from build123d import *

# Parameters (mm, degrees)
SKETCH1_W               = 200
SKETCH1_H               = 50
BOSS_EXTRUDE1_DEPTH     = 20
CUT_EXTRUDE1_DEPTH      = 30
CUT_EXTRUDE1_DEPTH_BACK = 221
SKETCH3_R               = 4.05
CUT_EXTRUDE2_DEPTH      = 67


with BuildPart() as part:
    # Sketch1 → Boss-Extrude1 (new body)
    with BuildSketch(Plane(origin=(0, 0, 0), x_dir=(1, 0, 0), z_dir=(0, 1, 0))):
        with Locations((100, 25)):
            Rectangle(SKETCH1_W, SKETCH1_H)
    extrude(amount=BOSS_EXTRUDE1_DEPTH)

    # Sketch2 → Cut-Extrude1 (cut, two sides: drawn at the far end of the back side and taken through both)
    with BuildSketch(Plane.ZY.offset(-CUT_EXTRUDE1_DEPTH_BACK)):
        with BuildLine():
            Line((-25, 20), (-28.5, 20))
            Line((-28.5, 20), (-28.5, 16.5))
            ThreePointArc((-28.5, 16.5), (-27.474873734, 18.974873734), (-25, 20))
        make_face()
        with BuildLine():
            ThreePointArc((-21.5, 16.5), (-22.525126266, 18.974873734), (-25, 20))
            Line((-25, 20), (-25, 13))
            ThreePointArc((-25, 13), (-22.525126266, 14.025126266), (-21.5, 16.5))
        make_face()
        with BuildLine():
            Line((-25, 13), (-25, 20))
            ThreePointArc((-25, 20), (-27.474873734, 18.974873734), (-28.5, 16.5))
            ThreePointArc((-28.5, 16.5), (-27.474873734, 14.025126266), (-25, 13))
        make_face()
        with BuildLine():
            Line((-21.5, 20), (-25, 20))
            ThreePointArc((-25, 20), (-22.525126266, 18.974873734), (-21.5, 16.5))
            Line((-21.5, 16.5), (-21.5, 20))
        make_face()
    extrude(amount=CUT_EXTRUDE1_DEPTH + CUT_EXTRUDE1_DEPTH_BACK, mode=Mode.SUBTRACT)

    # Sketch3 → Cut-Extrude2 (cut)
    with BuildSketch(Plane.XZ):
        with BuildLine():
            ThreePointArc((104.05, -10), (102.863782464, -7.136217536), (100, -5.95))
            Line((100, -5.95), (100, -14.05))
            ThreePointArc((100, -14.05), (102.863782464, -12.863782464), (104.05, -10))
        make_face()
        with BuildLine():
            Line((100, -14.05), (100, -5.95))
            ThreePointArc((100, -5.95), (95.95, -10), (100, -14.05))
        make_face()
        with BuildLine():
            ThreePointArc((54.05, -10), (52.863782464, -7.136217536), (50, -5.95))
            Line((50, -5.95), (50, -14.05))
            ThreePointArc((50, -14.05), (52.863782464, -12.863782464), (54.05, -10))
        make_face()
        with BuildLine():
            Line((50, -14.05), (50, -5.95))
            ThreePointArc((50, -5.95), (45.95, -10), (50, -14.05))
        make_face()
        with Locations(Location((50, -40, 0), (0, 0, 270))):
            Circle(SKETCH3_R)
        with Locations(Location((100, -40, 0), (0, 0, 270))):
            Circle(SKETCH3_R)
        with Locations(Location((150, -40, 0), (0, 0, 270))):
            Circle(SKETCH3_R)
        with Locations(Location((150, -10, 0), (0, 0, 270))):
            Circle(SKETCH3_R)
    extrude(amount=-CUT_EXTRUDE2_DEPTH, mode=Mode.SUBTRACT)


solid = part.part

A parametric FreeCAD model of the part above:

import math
import FreeCAD as App
import Part
import Sketcher

V = App.Vector
Q = App.Units.Quantity

doc = App.newDocument("Part")
body = doc.addObject("PartDesign::Body", "Body")

# Sketch on XZ plane
sketch1 = doc.addObject("Sketcher::SketchObject", "Sketch")
body.addObject(sketch1)
sketch1.AttachmentSupport = (doc.XZ_Plane, [""])
sketch1.MapMode = "FlatFace"
sketch1.addGeometry([
    Part.LineSegment(V(0, -50, 0), V(0, 0, 0)),
    Part.LineSegment(V(0, 0, 0), V(200, 0, 0)),
    Part.LineSegment(V(200, 0, 0), V(200, -50, 0)),
    Part.LineSegment(V(200, -50, 0), V(0, -50, 0)),
], False)
sketch1.addConstraint([
    Sketcher.Constraint("Coincident", 0, 2, 1, 1),
    Sketcher.Constraint("Coincident", 1, 2, 2, 1),
    Sketcher.Constraint("Coincident", 2, 2, 3, 1),
    Sketcher.Constraint("Coincident", 3, 2, 0, 1),
    Sketcher.Constraint("Vertical", 0),
    Sketcher.Constraint("Horizontal", 1),
    Sketcher.Constraint("Vertical", 2),
    Sketcher.Constraint("Horizontal", 3),
    Sketcher.Constraint("Coincident", 0, 2, -1, 1),
    Sketcher.Constraint("DistanceX", 1, 1, 1, 2, Q("200 mm")),
    Sketcher.Constraint("DistanceY", 0, 1, 0, 2, Q("50 mm")),
])
pad1 = doc.addObject("PartDesign::Pad", "Pad")
body.addObject(pad1)
pad1.Profile = sketch1
pad1.Length = 20
pad1.Reversed = True

# Sketch on YZ plane
sketch2 = doc.addObject("Sketcher::SketchObject", "Sketch001")
body.addObject(sketch2)
sketch2.AttachmentSupport = (doc.YZ_Plane, [""])
sketch2.MapMode = "FlatFace"
sketch2.addGeometry([
    Part.LineSegment(V(20, -28.5, 0), V(16.5, -28.5, 0)),  # 0
    Part.ArcOfCircle(Part.Circle(V(16.5, -25, 0), V(0, 0, 1), 3.5), math.radians(-180), math.radians(-90)),  # 1
    Part.ArcOfCircle(Part.Circle(V(16.5, -25, 0), V(0, 0, 1), 3.5), math.radians(90), math.radians(180)),  # 2
    Part.LineSegment(V(16.5, -21.5, 0), V(20, -21.5, 0)),  # 3
    Part.LineSegment(V(20, -21.5, 0), V(20, -28.5, 0)),  # 4
], False)
sketch2.addConstraint([
    Sketcher.Constraint("Tangent", 0, 2, 1, 2),
    Sketcher.Constraint("Tangent", 1, 1, 2, 2),
    Sketcher.Constraint("Tangent", 2, 1, 3, 1),
    Sketcher.Constraint("Coincident", 3, 2, 4, 1),
    Sketcher.Constraint("Coincident", 4, 2, 0, 1),
    Sketcher.Constraint("Horizontal", 0),
    Sketcher.Constraint("Horizontal", 3),
    Sketcher.Constraint("Vertical", 4),
    Sketcher.Constraint("Equal", 1, 2),
    Sketcher.Constraint("Horizontal", 2, 3, 1, 1),
    Sketcher.Constraint("Radius", 1, Q("3.5 mm")),
    Sketcher.Constraint("DistanceX", 0, 2, 0, 1, Q("3.5 mm")),
    Sketcher.Constraint("DistanceY", 1, 3, -1, 1, Q("25 mm")),
    Sketcher.Constraint("DistanceX", -1, 1, 1, 1, Q("13 mm")),
])
pocket1 = doc.addObject("PartDesign::Pocket", "Pocket")
body.addObject(pocket1)
pocket1.Profile = sketch2
pocket1.Type = "ThroughAll"
pocket1.Midplane = True

# Sketch on XZ plane
sketch3 = doc.addObject("Sketcher::SketchObject", "Sketch002")
body.addObject(sketch3)
sketch3.AttachmentSupport = (doc.XZ_Plane, [""])
sketch3.MapMode = "FlatFace"
sketch3.addGeometry([
    Part.ArcOfCircle(Part.Circle(V(100, -10, 0), V(0, 0, 1), 4), math.radians(0), math.radians(90)),  # 0
    Part.ArcOfCircle(Part.Circle(V(100, -10, 0), V(0, 0, 1), 4), math.radians(90), math.radians(270)),  # 1
    Part.ArcOfCircle(Part.Circle(V(100, -10, 0), V(0, 0, 1), 4), math.radians(-90), math.radians(0)),  # 2
    Part.ArcOfCircle(Part.Circle(V(50, -10, 0), V(0, 0, 1), 4), math.radians(0), math.radians(90)),  # 3
    Part.ArcOfCircle(Part.Circle(V(50, -10, 0), V(0, 0, 1), 4), math.radians(90), math.radians(270)),  # 4
    Part.ArcOfCircle(Part.Circle(V(50, -10, 0), V(0, 0, 1), 4), math.radians(-90), math.radians(0)),  # 5
    Part.Circle(V(50, -40, 0), V(0, 0, 1), 4),  # 6
    Part.Circle(V(100, -40, 0), V(0, 0, 1), 4),  # 7
    Part.Circle(V(150, -40, 0), V(0, 0, 1), 4),  # 8
    Part.Circle(V(150, -10, 0), V(0, 0, 1), 4),  # 9
], False)
sketch3.addConstraint([
    Sketcher.Constraint("Tangent", 0, 2, 1, 1),
    Sketcher.Constraint("Tangent", 1, 2, 2, 1),
    Sketcher.Constraint("Tangent", 2, 2, 0, 1),
    Sketcher.Constraint("Tangent", 3, 2, 4, 1),
    Sketcher.Constraint("Tangent", 4, 2, 5, 1),
    Sketcher.Constraint("Tangent", 5, 2, 3, 1),
    Sketcher.Constraint("Equal", 2, 3),
    Sketcher.Constraint("Equal", 5, 6),
    Sketcher.Constraint("Equal", 6, 7),
    Sketcher.Constraint("Equal", 7, 8),
    Sketcher.Constraint("Equal", 8, 9),
    Sketcher.Constraint("Horizontal", 2, 3, 3, 3),
    Sketcher.Constraint("Horizontal", 6, 3, 7, 3),
    Sketcher.Constraint("Horizontal", 7, 3, 8, 3),
    Sketcher.Constraint("Horizontal", 5, 3, 9, 3),
    Sketcher.Constraint("Horizontal", 9, 3, 2, 2),
    Sketcher.Constraint("Horizontal", 2, 2, 5, 2),
    Sketcher.Constraint("Vertical", 5, 3, 6, 3),
    Sketcher.Constraint("Vertical", 2, 3, 7, 3),
    Sketcher.Constraint("Vertical", 8, 3, 9, 3),
    Sketcher.Constraint("Vertical", 7, 3, 0, 2),
    Sketcher.Constraint("Vertical", 0, 2, 1, 2),
    Sketcher.Constraint("Vertical", 6, 3, 3, 2),
    Sketcher.Constraint("Vertical", 3, 2, 4, 2),
    Sketcher.Constraint("Diameter", 6, Q("8.1 mm")),
    Sketcher.Constraint("DistanceX", -1, 1, 0, 3, Q("100 mm")),
    Sketcher.Constraint("DistanceY", 0, 3, -1, 1, Q("10 mm")),
    Sketcher.Constraint("DistanceX", -1, 1, 3, 3, Q("50 mm")),
    Sketcher.Constraint("DistanceY", 6, 3, -1, 1, Q("40 mm")),
    Sketcher.Constraint("DistanceX", -1, 1, 8, 3, Q("150 mm")),
])
pocket2 = doc.addObject("PartDesign::Pocket", "Pocket001")
body.addObject(pocket2)
pocket2.Profile = sketch3
pocket2.Length = 67

doc.recompute()
